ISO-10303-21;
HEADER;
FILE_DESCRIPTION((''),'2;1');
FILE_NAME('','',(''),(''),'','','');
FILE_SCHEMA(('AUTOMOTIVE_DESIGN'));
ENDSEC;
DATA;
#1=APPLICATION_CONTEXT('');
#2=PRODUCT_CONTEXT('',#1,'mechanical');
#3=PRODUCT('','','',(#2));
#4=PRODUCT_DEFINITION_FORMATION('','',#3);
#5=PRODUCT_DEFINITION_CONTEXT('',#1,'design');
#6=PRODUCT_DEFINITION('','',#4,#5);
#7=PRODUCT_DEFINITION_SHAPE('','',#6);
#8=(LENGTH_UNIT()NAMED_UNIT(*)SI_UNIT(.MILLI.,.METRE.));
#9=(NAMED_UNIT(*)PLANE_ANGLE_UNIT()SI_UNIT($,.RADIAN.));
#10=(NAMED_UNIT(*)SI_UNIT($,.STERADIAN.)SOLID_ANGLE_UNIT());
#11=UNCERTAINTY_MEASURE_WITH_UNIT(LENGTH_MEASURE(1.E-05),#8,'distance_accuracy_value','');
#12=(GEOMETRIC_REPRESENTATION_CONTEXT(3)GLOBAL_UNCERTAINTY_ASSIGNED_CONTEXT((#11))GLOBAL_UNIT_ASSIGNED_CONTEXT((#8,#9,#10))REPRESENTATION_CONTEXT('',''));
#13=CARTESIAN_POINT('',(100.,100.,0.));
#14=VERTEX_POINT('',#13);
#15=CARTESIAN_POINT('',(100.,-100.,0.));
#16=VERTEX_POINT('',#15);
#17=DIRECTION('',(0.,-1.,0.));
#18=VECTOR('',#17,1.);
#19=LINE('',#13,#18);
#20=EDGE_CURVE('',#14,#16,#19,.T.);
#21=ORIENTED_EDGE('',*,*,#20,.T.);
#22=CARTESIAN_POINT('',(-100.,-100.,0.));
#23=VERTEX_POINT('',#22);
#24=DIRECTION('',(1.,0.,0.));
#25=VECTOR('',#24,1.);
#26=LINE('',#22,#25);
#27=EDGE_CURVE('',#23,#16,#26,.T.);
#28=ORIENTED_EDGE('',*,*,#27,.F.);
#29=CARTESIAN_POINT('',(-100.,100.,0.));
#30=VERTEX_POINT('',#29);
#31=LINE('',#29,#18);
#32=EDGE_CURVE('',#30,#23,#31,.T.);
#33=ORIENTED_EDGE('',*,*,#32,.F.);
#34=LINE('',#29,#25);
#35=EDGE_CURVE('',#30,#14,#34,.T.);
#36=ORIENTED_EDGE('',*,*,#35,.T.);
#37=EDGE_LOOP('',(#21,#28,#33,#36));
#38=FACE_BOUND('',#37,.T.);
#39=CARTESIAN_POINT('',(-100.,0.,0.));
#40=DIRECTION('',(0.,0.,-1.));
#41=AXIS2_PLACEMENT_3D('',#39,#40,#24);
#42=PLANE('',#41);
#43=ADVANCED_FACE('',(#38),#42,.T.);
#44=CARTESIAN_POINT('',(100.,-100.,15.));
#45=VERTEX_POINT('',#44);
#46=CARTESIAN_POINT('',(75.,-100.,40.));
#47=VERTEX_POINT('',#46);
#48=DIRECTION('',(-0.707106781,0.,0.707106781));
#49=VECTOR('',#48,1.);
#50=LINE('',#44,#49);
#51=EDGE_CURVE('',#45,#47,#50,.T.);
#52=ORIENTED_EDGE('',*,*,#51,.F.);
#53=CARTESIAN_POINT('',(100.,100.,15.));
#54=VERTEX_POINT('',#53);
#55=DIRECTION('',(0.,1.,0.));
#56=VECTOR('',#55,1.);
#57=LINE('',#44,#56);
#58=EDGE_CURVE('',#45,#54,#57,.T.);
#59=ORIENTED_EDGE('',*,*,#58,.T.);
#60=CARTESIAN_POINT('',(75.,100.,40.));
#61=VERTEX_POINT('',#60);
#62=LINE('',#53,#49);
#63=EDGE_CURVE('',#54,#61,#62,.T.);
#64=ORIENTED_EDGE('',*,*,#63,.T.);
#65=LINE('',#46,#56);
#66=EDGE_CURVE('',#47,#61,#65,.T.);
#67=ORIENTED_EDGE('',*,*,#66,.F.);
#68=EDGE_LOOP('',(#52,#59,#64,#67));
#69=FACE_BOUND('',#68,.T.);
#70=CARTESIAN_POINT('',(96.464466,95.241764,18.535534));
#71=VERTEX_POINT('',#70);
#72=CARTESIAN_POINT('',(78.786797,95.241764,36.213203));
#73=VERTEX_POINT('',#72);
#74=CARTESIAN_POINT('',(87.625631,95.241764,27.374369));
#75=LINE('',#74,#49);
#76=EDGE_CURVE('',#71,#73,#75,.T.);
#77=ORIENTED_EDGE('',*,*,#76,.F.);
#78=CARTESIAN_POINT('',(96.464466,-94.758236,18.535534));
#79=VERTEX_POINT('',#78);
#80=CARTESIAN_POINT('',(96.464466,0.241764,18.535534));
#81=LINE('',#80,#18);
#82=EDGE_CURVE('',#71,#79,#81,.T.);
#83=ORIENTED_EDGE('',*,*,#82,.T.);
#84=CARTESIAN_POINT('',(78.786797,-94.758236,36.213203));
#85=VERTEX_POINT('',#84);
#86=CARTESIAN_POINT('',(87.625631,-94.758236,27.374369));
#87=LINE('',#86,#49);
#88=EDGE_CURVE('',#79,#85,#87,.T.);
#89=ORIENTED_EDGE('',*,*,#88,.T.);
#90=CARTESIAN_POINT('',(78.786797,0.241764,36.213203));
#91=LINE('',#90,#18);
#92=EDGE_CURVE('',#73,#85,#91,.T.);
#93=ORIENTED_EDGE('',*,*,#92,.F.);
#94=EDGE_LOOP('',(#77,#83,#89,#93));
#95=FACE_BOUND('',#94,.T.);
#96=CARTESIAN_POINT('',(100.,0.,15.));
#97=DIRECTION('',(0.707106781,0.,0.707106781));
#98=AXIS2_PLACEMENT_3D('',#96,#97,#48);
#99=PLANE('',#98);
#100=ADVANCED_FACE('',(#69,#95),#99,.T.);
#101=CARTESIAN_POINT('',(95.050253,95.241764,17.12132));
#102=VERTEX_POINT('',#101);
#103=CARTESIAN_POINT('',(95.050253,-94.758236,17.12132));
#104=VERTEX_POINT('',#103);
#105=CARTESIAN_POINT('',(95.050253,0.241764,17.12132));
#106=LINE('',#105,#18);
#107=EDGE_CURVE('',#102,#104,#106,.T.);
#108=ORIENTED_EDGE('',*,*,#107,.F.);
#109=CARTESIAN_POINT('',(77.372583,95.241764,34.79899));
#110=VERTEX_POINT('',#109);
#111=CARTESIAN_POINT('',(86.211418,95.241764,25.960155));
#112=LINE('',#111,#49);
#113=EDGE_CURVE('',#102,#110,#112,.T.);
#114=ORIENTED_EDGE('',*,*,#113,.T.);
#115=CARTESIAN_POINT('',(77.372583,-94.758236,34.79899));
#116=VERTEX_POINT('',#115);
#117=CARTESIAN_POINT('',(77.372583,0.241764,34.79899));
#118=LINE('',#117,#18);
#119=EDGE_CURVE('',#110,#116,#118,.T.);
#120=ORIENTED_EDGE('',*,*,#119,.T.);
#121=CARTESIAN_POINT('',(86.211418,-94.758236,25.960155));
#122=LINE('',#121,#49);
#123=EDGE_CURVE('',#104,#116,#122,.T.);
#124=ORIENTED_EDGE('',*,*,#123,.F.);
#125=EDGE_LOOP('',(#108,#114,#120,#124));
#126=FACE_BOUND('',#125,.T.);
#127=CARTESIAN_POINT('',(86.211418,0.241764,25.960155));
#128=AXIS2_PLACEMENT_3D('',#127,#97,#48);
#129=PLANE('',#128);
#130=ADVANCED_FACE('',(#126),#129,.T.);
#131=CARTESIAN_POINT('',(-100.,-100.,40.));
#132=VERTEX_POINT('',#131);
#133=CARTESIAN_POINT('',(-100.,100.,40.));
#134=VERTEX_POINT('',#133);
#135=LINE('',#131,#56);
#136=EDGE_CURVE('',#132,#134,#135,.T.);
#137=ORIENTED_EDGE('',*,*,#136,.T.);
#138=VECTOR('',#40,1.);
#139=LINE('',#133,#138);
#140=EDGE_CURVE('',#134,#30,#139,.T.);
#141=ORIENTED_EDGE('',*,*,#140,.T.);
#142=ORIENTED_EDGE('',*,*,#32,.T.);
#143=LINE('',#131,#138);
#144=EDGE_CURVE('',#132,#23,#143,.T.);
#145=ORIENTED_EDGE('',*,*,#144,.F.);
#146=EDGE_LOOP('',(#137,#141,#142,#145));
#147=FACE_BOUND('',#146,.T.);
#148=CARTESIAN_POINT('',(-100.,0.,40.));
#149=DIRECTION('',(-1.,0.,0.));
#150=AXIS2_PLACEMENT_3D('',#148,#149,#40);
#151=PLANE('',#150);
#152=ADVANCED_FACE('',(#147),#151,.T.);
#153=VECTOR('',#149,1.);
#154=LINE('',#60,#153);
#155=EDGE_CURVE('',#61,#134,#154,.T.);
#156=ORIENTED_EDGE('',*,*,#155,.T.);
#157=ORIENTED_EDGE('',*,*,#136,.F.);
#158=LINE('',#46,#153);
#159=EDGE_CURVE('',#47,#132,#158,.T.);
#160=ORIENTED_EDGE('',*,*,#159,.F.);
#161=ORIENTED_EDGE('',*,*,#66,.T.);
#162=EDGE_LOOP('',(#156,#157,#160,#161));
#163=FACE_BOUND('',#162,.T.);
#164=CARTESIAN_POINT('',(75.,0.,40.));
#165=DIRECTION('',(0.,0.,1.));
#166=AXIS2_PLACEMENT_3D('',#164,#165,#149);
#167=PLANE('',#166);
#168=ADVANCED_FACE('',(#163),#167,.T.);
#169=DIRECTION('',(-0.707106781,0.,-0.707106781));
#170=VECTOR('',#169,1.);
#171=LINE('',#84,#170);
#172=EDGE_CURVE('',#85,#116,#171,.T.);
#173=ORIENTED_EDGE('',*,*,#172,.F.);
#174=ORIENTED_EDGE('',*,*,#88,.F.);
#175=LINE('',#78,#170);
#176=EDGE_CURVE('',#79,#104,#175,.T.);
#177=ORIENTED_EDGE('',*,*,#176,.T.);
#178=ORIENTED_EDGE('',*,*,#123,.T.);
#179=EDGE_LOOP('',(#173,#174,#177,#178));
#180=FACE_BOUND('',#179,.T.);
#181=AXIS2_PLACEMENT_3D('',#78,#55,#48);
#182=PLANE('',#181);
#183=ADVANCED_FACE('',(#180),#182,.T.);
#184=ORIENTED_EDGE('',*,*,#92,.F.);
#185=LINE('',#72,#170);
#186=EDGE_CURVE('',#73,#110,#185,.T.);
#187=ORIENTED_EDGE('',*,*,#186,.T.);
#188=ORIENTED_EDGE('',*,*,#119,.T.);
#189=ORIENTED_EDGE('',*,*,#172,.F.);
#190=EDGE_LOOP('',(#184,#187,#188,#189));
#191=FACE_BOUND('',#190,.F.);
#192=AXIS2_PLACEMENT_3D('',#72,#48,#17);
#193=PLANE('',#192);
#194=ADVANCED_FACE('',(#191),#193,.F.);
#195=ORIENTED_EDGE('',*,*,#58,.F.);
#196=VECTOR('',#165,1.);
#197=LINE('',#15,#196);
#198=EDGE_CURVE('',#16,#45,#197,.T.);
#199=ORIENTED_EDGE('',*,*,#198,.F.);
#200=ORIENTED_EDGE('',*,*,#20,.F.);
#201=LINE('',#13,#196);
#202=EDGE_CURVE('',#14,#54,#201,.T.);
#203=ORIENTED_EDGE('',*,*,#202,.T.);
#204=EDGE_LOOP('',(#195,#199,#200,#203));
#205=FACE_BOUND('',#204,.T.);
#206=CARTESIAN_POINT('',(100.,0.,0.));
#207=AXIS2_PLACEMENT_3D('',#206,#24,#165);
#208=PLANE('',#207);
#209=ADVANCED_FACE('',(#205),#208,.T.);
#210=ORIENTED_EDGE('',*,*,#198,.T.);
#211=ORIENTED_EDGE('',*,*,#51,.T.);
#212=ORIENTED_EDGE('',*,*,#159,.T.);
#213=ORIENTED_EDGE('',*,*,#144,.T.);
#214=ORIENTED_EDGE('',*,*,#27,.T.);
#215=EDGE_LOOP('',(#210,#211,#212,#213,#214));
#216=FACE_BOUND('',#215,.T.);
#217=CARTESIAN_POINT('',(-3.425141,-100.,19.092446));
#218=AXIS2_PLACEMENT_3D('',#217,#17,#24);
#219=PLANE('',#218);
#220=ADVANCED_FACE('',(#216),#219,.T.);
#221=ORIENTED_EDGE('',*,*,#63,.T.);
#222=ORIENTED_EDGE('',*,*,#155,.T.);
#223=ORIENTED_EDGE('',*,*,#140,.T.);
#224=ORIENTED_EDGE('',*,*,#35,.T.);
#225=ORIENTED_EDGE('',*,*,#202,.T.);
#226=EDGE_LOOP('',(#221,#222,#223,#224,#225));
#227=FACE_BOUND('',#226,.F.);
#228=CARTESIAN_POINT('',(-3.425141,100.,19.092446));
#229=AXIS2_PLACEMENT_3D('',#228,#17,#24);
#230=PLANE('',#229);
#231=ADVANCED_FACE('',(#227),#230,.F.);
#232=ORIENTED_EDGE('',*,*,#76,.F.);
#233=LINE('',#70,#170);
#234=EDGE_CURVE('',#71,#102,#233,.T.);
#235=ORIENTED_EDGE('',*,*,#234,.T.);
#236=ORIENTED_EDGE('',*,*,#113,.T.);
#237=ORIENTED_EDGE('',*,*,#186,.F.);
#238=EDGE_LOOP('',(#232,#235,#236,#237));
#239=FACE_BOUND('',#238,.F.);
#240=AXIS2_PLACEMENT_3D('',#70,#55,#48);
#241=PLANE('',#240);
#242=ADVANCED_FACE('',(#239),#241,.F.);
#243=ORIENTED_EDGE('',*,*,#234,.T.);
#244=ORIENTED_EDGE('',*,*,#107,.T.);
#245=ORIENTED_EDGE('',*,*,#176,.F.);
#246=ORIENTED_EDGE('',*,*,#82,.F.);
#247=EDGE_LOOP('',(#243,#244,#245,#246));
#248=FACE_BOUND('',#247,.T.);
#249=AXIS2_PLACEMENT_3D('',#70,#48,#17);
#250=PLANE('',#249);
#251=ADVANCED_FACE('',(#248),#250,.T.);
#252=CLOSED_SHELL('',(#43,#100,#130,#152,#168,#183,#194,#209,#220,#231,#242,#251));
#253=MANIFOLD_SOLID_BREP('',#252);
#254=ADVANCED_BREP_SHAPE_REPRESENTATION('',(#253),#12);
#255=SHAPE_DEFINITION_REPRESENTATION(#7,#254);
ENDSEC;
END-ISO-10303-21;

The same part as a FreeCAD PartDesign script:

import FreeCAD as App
import Part
import Sketcher

V = App.Vector
Q = App.Units.Quantity


def add_polygon(sketch, points):
    """Adds a closed chain of lines whose ends are joined by coincident constraints."""
    first, n = sketch.GeometryCount, len(points)
    for a, b in zip(points, points[1:] + points[:1]):
        sketch.addGeometry(Part.LineSegment(App.Vector(*a, 0), App.Vector(*b, 0)), False)
    for i in range(n):
        sketch.addConstraint(Sketcher.Constraint("Coincident", first + i, 2, first + (i + 1) % n, 1))

doc = App.newDocument("Part")
params = doc.addObject("Spreadsheet::Sheet", "Params")
for row, (alias, value) in enumerate([
    ("sketch1_width", "200 mm"),
    ("sketch1_width2", "175 mm"),
    ("sketch1_height", "40 mm"),
    ("sketch1_height2", "15 mm"),
    ("pad1_length", "200 mm"),
    ("sketch2_width", "25 mm"),
    ("sketch2_height", "190 mm"),
    ("pocket1_length", "2 mm"),
], start=1):
    params.set(f"A{row}", alias)
    params.set(f"B{row}", "=" + value)
    params.setAlias(f"B{row}", alias)

body = doc.addObject("PartDesign::Body", "Body")

sketch1 = body.newObject("Sketcher::SketchObject", "Sketch")
sketch1.AttachmentSupport = (doc.getObject("XZ_Plane"), [""])
sketch1.MapMode = "FlatFace"
add_polygon(sketch1, [(-100, 40), (-100, 0), (100, 0), (100, 15), (75, 40)])
sketch1.addConstraint(Sketcher.Constraint("Vertical", 0))
sketch1.addConstraint(Sketcher.Constraint("Horizontal", 1))
sketch1.addConstraint(Sketcher.Constraint("Vertical", 2))
sketch1.addConstraint(Sketcher.Constraint("Horizontal", 4))
sketch1.addConstraint(Sketcher.Constraint("Symmetric", 0, 2, 1, 2, -1, 1))
sketch1.addConstraint(Sketcher.Constraint("DistanceX", 1, 1, 1, 2, Q("200 mm")))
sketch1.addConstraint(Sketcher.Constraint("DistanceX", 4, 2, 4, 1, Q("175 mm")))
sketch1.addConstraint(Sketcher.Constraint("DistanceY", 0, 2, 0, 1, Q("40 mm")))
sketch1.addConstraint(Sketcher.Constraint("DistanceY", 2, 1, 2, 2, Q("15 mm")))
sketch1.setExpression("Constraints[10]", "Params.sketch1_width")
sketch1.setExpression("Constraints[11]", "Params.sketch1_width2")
sketch1.setExpression("Constraints[12]", "Params.sketch1_height")
sketch1.setExpression("Constraints[13]", "Params.sketch1_height2")
pad1 = body.newObject("PartDesign::Pad", "Pad")
pad1.Profile = sketch1
pad1.setExpression("Length", "Params.pad1_length")
pad1.Midplane = True

sketch2 = body.newObject("Sketcher::SketchObject", "Sketch001")
sketch2.Placement = App.Placement(V(100, -100, 15), App.Rotation(V(-0.707106781, 0, 0.707106781), V(0, -0.999999999, 0), V(0.707106781, 0, 0.707106781), "ZXY"))
add_polygon(sketch2, [(5, -5.241764), (5, -195.241764), (30, -195.241764), (30, -5.241764)])
sketch2.addConstraint(Sketcher.Constraint("Vertical", 0))
sketch2.addConstraint(Sketcher.Constraint("Horizontal", 1))
sketch2.addConstraint(Sketcher.Constraint("Vertical", 2))
sketch2.addConstraint(Sketcher.Constraint("Horizontal", 3))
sketch2.addConstraint(Sketcher.Constraint("DistanceX", 1, 1, 1, 2, Q("25 mm")))
sketch2.addConstraint(Sketcher.Constraint("DistanceY", 0, 2, 0, 1, Q("190 mm")))
sketch2.addConstraint(Sketcher.Constraint("DistanceX", -1, 1, 0, 2, Q("5 mm")))
sketch2.addConstraint(Sketcher.Constraint("DistanceY", 0, 2, -1, 1, Q("195.241764 mm")))
sketch2.setExpression("Constraints[8]", "Params.sketch2_width")
sketch2.setExpression("Constraints[9]", "Params.sketch2_height")
pocket1 = body.newObject("PartDesign::Pocket", "Pocket")
pocket1.Profile = sketch2
pocket1.setExpression("Length", "Params.pocket1_length")

doc.recompute()
